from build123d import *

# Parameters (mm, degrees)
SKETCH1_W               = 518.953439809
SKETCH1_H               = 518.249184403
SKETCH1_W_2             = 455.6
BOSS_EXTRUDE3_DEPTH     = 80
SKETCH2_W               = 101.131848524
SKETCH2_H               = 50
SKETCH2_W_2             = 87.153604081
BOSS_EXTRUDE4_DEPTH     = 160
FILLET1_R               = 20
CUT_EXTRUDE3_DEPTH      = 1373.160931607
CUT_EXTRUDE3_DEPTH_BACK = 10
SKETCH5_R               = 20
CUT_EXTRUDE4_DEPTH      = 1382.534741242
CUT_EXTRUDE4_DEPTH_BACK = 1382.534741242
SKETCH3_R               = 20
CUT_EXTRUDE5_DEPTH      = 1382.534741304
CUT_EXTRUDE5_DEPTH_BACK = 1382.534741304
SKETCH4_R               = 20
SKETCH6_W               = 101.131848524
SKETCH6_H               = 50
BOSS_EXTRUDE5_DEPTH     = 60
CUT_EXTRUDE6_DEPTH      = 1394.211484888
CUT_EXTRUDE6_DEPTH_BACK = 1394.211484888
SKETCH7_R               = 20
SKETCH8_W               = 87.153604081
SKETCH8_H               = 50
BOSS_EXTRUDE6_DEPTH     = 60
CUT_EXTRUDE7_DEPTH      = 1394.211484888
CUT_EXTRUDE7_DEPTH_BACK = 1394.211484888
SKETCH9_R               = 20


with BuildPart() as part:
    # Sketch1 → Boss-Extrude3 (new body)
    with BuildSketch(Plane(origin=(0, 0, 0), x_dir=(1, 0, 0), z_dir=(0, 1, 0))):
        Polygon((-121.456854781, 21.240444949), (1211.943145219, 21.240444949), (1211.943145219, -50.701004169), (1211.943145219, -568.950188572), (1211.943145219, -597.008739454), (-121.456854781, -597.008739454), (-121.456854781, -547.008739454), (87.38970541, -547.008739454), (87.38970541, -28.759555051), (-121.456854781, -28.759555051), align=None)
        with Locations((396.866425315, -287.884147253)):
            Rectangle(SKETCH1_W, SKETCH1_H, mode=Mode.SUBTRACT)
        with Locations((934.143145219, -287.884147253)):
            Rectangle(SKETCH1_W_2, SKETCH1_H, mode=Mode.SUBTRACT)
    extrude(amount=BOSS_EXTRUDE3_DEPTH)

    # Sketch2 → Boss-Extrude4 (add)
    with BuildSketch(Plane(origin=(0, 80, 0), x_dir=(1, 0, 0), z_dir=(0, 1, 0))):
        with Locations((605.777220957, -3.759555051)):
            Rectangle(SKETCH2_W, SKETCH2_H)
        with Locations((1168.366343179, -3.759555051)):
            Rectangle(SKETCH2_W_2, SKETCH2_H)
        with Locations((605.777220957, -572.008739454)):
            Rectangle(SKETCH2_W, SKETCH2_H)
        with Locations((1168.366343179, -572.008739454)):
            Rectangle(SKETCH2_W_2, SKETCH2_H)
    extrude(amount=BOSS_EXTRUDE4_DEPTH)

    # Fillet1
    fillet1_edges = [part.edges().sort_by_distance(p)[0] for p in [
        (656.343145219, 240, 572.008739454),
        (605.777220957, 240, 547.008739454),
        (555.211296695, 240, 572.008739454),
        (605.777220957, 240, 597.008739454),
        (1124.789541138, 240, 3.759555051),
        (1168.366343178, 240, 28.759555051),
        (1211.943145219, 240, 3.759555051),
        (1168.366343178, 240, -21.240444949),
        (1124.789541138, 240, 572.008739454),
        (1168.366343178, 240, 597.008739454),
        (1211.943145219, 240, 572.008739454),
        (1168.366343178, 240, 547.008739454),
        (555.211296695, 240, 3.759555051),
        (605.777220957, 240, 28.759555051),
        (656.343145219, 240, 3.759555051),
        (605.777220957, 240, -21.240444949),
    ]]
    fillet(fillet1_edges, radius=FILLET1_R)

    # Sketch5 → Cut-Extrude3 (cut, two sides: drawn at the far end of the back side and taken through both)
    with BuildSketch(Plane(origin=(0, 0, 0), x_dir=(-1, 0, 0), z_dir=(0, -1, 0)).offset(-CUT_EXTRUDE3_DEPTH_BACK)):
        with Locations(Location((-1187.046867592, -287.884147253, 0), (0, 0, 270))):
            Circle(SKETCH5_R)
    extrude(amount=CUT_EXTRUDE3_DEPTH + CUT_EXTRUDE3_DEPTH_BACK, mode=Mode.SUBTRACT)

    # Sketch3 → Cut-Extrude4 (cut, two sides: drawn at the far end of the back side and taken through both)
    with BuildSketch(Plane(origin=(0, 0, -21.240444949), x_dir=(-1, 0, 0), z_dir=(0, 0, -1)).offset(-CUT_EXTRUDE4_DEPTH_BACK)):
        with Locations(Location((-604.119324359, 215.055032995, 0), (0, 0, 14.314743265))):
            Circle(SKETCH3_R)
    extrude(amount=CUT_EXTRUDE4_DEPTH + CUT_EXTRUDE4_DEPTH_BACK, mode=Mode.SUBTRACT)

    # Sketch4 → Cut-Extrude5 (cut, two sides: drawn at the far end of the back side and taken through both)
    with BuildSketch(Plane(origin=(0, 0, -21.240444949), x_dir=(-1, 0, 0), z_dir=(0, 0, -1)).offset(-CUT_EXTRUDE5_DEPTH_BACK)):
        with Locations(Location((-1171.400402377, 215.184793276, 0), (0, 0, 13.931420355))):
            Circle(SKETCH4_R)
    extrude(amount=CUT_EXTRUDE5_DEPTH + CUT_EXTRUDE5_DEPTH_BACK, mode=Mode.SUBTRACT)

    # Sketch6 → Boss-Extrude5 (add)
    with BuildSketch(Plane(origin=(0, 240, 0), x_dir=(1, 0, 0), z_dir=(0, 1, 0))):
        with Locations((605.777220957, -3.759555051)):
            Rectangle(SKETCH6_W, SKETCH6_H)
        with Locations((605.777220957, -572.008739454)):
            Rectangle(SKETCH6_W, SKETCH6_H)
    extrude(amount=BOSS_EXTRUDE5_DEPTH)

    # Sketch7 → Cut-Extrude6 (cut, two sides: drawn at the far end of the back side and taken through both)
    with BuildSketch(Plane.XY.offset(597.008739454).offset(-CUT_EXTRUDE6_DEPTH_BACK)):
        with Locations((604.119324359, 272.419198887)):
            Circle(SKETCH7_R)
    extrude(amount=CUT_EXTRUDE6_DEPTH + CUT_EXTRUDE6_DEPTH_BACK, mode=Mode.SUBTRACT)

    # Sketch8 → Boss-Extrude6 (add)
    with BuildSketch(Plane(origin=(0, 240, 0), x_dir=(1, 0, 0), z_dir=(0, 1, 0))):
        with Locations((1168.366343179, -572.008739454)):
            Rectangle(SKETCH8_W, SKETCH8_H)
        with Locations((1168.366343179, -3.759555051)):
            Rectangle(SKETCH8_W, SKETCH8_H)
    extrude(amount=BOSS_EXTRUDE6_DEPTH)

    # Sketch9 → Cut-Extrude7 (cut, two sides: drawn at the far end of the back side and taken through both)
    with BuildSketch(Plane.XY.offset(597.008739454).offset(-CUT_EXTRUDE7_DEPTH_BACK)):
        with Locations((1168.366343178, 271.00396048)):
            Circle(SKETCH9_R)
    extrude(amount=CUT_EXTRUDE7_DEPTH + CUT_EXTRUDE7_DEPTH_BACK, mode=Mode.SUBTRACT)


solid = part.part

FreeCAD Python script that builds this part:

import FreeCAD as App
import Part
import Sketcher

V = App.Vector


def edges_at(feature, points):
    """Names of the edges that pass closest to the given points."""
    edges = feature.Shape.Edges
    near = lambda p: min(range(len(edges)), key=lambda i: edges[i].distToShape(Part.Vertex(*p))[0])
    return sorted({f"Edge{near(p) + 1}" for p in points})

doc = App.newDocument("Part")
body = doc.addObject("PartDesign::Body", "Body")

# Sketch on XZ plane
sketch1 = body.newObject("Sketcher::SketchObject", "Sketch")
sketch1.AttachmentSupport = (doc.getObject("XZ_Plane"), [""])
sketch1.MapMode = "FlatFace"
sketch1.addGeometry(Part.LineSegment(V(1212, -21, 0), V(-121, -21, 0)), False)
sketch1.addGeometry(Part.LineSegment(V(-121, -21, 0), V(-121, 29, 0)), False)
sketch1.addGeometry(Part.LineSegment(V(-121, 29, 0), V(87, 29, 0)), False)
sketch1.addGeometry(Part.LineSegment(V(87, 29, 0), V(87, 547, 0)), False)
sketch1.addGeometry(Part.LineSegment(V(87, 547, 0), V(-121, 547, 0)), False)
sketch1.addGeometry(Part.LineSegment(V(-121, 547, 0), V(-121, 597, 0)), False)
sketch1.addGeometry(Part.LineSegment(V(-121, 597, 0), V(1212, 597, 0)), False)
sketch1.addGeometry(Part.LineSegment(V(1212, 597, 0), V(1212, -21, 0)), False)
sketch1.addGeometry(Part.LineSegment(V(706, 547, 0), V(706, 29, 0)), False)
sketch1.addGeometry(Part.LineSegment(V(706, 29, 0), V(1162, 29, 0)), False)
sketch1.addGeometry(Part.LineSegment(V(1162, 29, 0), V(1162, 547, 0)), False)
sketch1.addGeometry(Part.LineSegment(V(1162, 547, 0), V(706, 547, 0)), False)
sketch1.addGeometry(Part.LineSegment(V(137, 547, 0), V(137, 29, 0)), False)
sketch1.addGeometry(Part.LineSegment(V(137, 29, 0), V(656, 29, 0)), False)
sketch1.addGeometry(Part.LineSegment(V(656, 29, 0), V(656, 547, 0)), False)
sketch1.addGeometry(Part.LineSegment(V(656, 547, 0), V(137, 547, 0)), False)
sketch1.addConstraint(Sketcher.Constraint("Coincident", 0, 2, 1, 1))
sketch1.addConstraint(Sketcher.Constraint("Coincident", 1, 2, 2, 1))
sketch1.addConstraint(Sketcher.Constraint("Coincident", 2, 2, 3, 1))
sketch1.addConstraint(Sketcher.Constraint("Coincident", 3, 2, 4, 1))
sketch1.addConstraint(Sketcher.Constraint("Coincident", 4, 2, 5, 1))
sketch1.addConstraint(Sketcher.Constraint("Coincident", 5, 2, 6, 1))
sketch1.addConstraint(Sketcher.Constraint("Coincident", 6, 2, 7, 1))
sketch1.addConstraint(Sketcher.Constraint("Coincident", 7, 2, 0, 1))
sketch1.addConstraint(Sketcher.Constraint("Coincident", 8, 2, 9, 1))
sketch1.addConstraint(Sketcher.Constraint("Coincident", 9, 2, 10, 1))
sketch1.addConstraint(Sketcher.Constraint("Coincident", 10, 2, 11, 1))
sketch1.addConstraint(Sketcher.Constraint("Coincident", 11, 2, 8, 1))
sketch1.addConstraint(Sketcher.Constraint("Coincident", 12, 2, 13, 1))
sketch1.addConstraint(Sketcher.Constraint("Coincident", 13, 2, 14, 1))
sketch1.addConstraint(Sketcher.Constraint("Coincident", 14, 2, 15, 1))
sketch1.addConstraint(Sketcher.Constraint("Coincident", 15, 2, 12, 1))
sketch1.addConstraint(Sketcher.Constraint("Horizontal", 0))
sketch1.addConstraint(Sketcher.Constraint("Vertical", 1))
sketch1.addConstraint(Sketcher.Constraint("Horizontal", 2))
sketch1.addConstraint(Sketcher.Constraint("Vertical", 3))
sketch1.addConstraint(Sketcher.Constraint("Horizontal", 4))
sketch1.addConstraint(Sketcher.Constraint("Vertical", 5))
sketch1.addConstraint(Sketcher.Constraint("Horizontal", 6))
sketch1.addConstraint(Sketcher.Constraint("Vertical", 7))
sketch1.addConstraint(Sketcher.Constraint("Vertical", 8))
sketch1.addConstraint(Sketcher.Constraint("Horizontal", 9))
sketch1.addConstraint(Sketcher.Constraint("Vertical", 10))
sketch1.addConstraint(Sketcher.Constraint("Horizontal", 11))
sketch1.addConstraint(Sketcher.Constraint("Vertical", 12))
sketch1.addConstraint(Sketcher.Constraint("Horizontal", 13))
sketch1.addConstraint(Sketcher.Constraint("Vertical", 14))
sketch1.addConstraint(Sketcher.Constraint("Horizontal", 15))
sketch1.addConstraint(Sketcher.Constraint("Horizontal", 2, 2, 8, 2))
sketch1.addConstraint(Sketcher.Constraint("Horizontal", 4, 2, 10, 2))
sketch1.addConstraint(Sketcher.Constraint("Horizontal", 9, 2, 12, 2))
sketch1.addConstraint(Sketcher.Constraint("Horizontal", 11, 2, 14, 2))
sketch1.addConstraint(Sketcher.Constraint("Vertical", 1, 2, 4, 2))
sketch1.addConstraint(Sketcher.Constraint("Equal", 1, 5))
sketch1.addConstraint(Sketcher.Constraint("DistanceY", 1, 1, 1, 2, 50.0))
sketch1.addConstraint(Sketcher.Constraint("DistanceX", 0, 2, 0, 1, 1333.4))
sketch1.addConstraint(Sketcher.Constraint("DistanceX", 9, 1, 9, 2, 455.6))
sketch1.addConstraint(Sketcher.Constraint("DistanceX", 9, 2, 7, 2, 50.0))
sketch1.addConstraint(Sketcher.Constraint("DistanceX", 2, 2, 12, 2, 50.0))
sketch1.addConstraint(Sketcher.Constraint("DistanceX", 13, 2, 8, 2, 50.0))
sketch1.addConstraint(Sketcher.Constraint("DistanceX", 2, 1, 2, 2, 208.84656))
sketch1.addConstraint(Sketcher.Constraint("DistanceY", 3, 1, 3, 2, 518.249184))
sketch1.addConstraint(Sketcher.Constraint("DistanceY", -1, 1, 3, 2, 547.008739))
sketch1.addConstraint(Sketcher.Constraint("DistanceX", 0, 2, -1, 1, 121.456855))
pad1 = body.newObject("PartDesign::Pad", "Pad")
pad1.Profile = sketch1
pad1.Length = 80
pad1.Reversed = True

# Sketch on XZ plane
sketch2 = body.newObject("Sketcher::SketchObject", "Sketch001")
sketch2.AttachmentSupport = (doc.getObject("XZ_Plane"), [""])
sketch2.MapMode = "FlatFace"
sketch2.AttachmentOffset = App.Placement(V(0, 0, -80), App.Rotation())
sketch2.addGeometry(Part.LineSegment(V(555, -21, 0), V(555, 29, 0)), False)
sketch2.addGeometry(Part.LineSegment(V(555, 29, 0), V(656, 29, 0)), False)
sketch2.addGeometry(Part.LineSegment(V(656, 29, 0), V(656, -21, 0)), False)
sketch2.addGeometry(Part.LineSegment(V(656, -21, 0), V(555, -21, 0)), False)
sketch2.addGeometry(Part.LineSegment(V(1125, -21, 0), V(1125, 29, 0)), False)
sketch2.addGeometry(Part.LineSegment(V(1125, 29, 0), V(1212, 29, 0)), False)
sketch2.addGeometry(Part.LineSegment(V(1212, 29, 0), V(1212, -21, 0)), False)
sketch2.addGeometry(Part.LineSegment(V(1212, -21, 0), V(1125, -21, 0)), False)
sketch2.addGeometry(Part.LineSegment(V(555, 547, 0), V(555, 597, 0)), False)
sketch2.addGeometry(Part.LineSegment(V(555, 597, 0), V(656, 597, 0)), False)
sketch2.addGeometry(Part.LineSegment(V(656, 597, 0), V(656, 547, 0)), False)
sketch2.addGeometry(Part.LineSegment(V(656, 547, 0), V(555, 547, 0)), False)
sketch2.addGeometry(Part.LineSegment(V(1125, 547, 0), V(1125, 597, 0)), False)
sketch2.addGeometry(Part.LineSegment(V(1125, 597, 0), V(1212, 597, 0)), False)
sketch2.addGeometry(Part.LineSegment(V(1212, 597, 0), V(1212, 547, 0)), False)
sketch2.addGeometry(Part.LineSegment(V(1212, 547, 0), V(1125, 547, 0)), False)
sketch2.addConstraint(Sketcher.Constraint("Coincident", 0, 2, 1, 1))
sketch2.addConstraint(Sketcher.Constraint("Coincident", 1, 2, 2, 1))
sketch2.addConstraint(Sketcher.Constraint("Coincident", 2, 2, 3, 1))
sketch2.addConstraint(Sketcher.Constraint("Coincident", 3, 2, 0, 1))
sketch2.addConstraint(Sketcher.Constraint("Coincident", 4, 2, 5, 1))
sketch2.addConstraint(Sketcher.Constraint("Coincident", 5, 2, 6, 1))
sketch2.addConstraint(Sketcher.Constraint("Coincident", 6, 2, 7, 1))
sketch2.addConstraint(Sketcher.Constraint("Coincident", 7, 2, 4, 1))
sketch2.addConstraint(Sketcher.Constraint("Coincident", 8, 2, 9, 1))
sketch2.addConstraint(Sketcher.Constraint("Coincident", 9, 2, 10, 1))
sketch2.addConstraint(Sketcher.Constraint("Coincident", 10, 2, 11, 1))
sketch2.addConstraint(Sketcher.Constraint("Coincident", 11, 2, 8, 1))
sketch2.addConstraint(Sketcher.Constraint("Coincident", 12, 2, 13, 1))
sketch2.addConstraint(Sketcher.Constraint("Coincident", 13, 2, 14, 1))
sketch2.addConstraint(Sketcher.Constraint("Coincident", 14, 2, 15, 1))
sketch2.addConstraint(Sketcher.Constraint("Coincident", 15, 2, 12, 1))
sketch2.addConstraint(Sketcher.Constraint("Vertical", 0))
sketch2.addConstraint(Sketcher.Constraint("Horizontal", 1))
sketch2.addConstraint(Sketcher.Constraint("Vertical", 2))
sketch2.addConstraint(Sketcher.Constraint("Horizontal", 3))
sketch2.addConstraint(Sketcher.Constraint("Vertical", 4))
sketch2.addConstraint(Sketcher.Constraint("Horizontal", 5))
sketch2.addConstraint(Sketcher.Constraint("Vertical", 6))
sketch2.addConstraint(Sketcher.Constraint("Horizontal", 7))
sketch2.addConstraint(Sketcher.Constraint("Vertical", 8))
sketch2.addConstraint(Sketcher.Constraint("Horizontal", 9))
sketch2.addConstraint(Sketcher.Constraint("Vertical", 10))
sketch2.addConstraint(Sketcher.Constraint("Horizontal", 11))
sketch2.addConstraint(Sketcher.Constraint("Vertical", 12))
sketch2.addConstraint(Sketcher.Constraint("Horizontal", 13))
sketch2.addConstraint(Sketcher.Constraint("Vertical", 14))
sketch2.addConstraint(Sketcher.Constraint("Horizontal", 15))
sketch2.addConstraint(Sketcher.Constraint("Horizontal", 1, 2, 4, 2))
sketch2.addConstraint(Sketcher.Constraint("Horizontal", 3, 2, 6, 2))
sketch2.addConstraint(Sketcher.Constraint("Horizontal", 9, 2, 12, 2))
sketch2.addConstraint(Sketcher.Constraint("Horizontal", 11, 2, 14, 2))
sketch2.addConstraint(Sketcher.Constraint("Vertical", 3, 2, 8, 2))
sketch2.addConstraint(Sketcher.Constraint("Vertical", 2, 2, 9, 2))
sketch2.addConstraint(Sketcher.Constraint("Vertical", 7, 2, 12, 2))
sketch2.addConstraint(Sketcher.Constraint("Vertical", 6, 2, 13, 2))
sketch2.addConstraint(Sketcher.Constraint("Equal", 6, 8))
sketch2.addConstraint(Sketcher.Constraint("DistanceY", 0, 1, 0, 2, 50.0))
sketch2.addConstraint(Sketcher.Constraint("DistanceX", 1, 2, 5, 2, 555.6))
sketch2.addConstraint(Sketcher.Constraint("DistanceX", 1, 1, 1, 2, 101.131849))
sketch2.addConstraint(Sketcher.Constraint("DistanceX", 5, 1, 5, 2, 87.153604))
sketch2.addConstraint(Sketcher.Constraint("DistanceX", -1, 1, 4, 2, 1124.789541))
sketch2.addConstraint(Sketcher.Constraint("DistanceY", -1, 1, 8, 2, 597.008739))
sketch2.addConstraint(Sketcher.Constraint("DistanceY", -1, 1, 0, 2, 28.759555))
pad2 = body.newObject("PartDesign::Pad", "Pad001")
pad2.Profile = sketch2
pad2.Length = 160
pad2.Reversed = True
doc.recompute()

fillet = body.newObject("PartDesign::Fillet", "Fillet")
fillet.Base = (pad2, edges_at(pad2, [
    (656.343, 240, 572.009),
    (605.777, 240, 547.009),
    (555.211, 240, 572.009),
    (605.777, 240, 597.009),
    (1124.79, 240, 3.76),
    (1168.366, 240, 28.76),
    (1211.943, 240, 3.76),
    (1168.366, 240, -21.24),
    (1124.79, 240, 572.009),
    (1168.366, 240, 597.009),
    (1211.943, 240, 572.009),
    (1168.366, 240, 547.009),
    (555.211, 240, 3.76),
    (605.777, 240, 28.76),
    (656.343, 240, 3.76),
    (605.777, 240, -21.24),
]))
fillet.Radius = 20

# Sketch on XZ plane
sketch3 = body.newObject("Sketcher::SketchObject", "Sketch002")
sketch3.AttachmentSupport = (doc.getObject("XZ_Plane"), [""])
sketch3.MapMode = "FlatFace"
sketch3.addGeometry(Part.Circle(V(1187, 288, 0), V(0, 0, 1), 20), False)
sketch3.addConstraint(Sketcher.Constraint("Diameter", 0, 40.0))
sketch3.addConstraint(Sketcher.Constraint("DistanceX", -1, 1, 0, 3, 1187.046868))
sketch3.addConstraint(Sketcher.Constraint("DistanceY", -1, 1, 0, 3, 287.884147))
pocket1 = body.newObject("PartDesign::Pocket", "Pocket")
pocket1.Profile = sketch3
pocket1.Type = "TwoLengths"
pocket1.Length = 1373.160932
pocket1.Length2 = 10
pocket1.Reversed = True

# Sketch on XY plane
sketch4 = body.newObject("Sketcher::SketchObject", "Sketch003")
sketch4.AttachmentSupport = (doc.getObject("XY_Plane"), [""])
sketch4.MapMode = "FlatFace"
sketch4.AttachmentOffset = App.Placement(V(0, 0, -21.240445), App.Rotation())
sketch4.addGeometry(Part.Circle(V(604, 215, 0), V(0, 0, 1), 20), False)
sketch4.addConstraint(Sketcher.Constraint("Diameter", 0, 40.0))
sketch4.addConstraint(Sketcher.Constraint("DistanceX", -1, 1, 0, 3, 604.119324))
sketch4.addConstraint(Sketcher.Constraint("DistanceY", -1, 1, 0, 3, 215.055033))
pocket2 = body.newObject("PartDesign::Pocket", "Pocket001")
pocket2.Profile = sketch4
pocket2.Type = "ThroughAll"
pocket2.Midplane = True

# Sketch on XY plane
sketch5 = body.newObject("Sketcher::SketchObject", "Sketch004")
sketch5.AttachmentSupport = (doc.getObject("XY_Plane"), [""])
sketch5.MapMode = "FlatFace"
sketch5.AttachmentOffset = App.Placement(V(0, 0, -21.240445), App.Rotation())
sketch5.addGeometry(Part.Circle(V(1171, 215, 0), V(0, 0, 1), 20), False)
sketch5.addConstraint(Sketcher.Constraint("Diameter", 0, 40.0))
sketch5.addConstraint(Sketcher.Constraint("DistanceX", -1, 1, 0, 3, 1171.400402))
sketch5.addConstraint(Sketcher.Constraint("DistanceY", -1, 1, 0, 3, 215.184793))
pocket3 = body.newObject("PartDesign::Pocket", "Pocket002")
pocket3.Profile = sketch5
pocket3.Type = "ThroughAll"
pocket3.Midplane = True

# Sketch on XZ plane
sketch6 = body.newObject("Sketcher::SketchObject", "Sketch005")
sketch6.AttachmentSupport = (doc.getObject("XZ_Plane"), [""])
sketch6.MapMode = "FlatFace"
sketch6.AttachmentOffset = App.Placement(V(0, 0, -240), App.Rotation())
sketch6.addGeometry(Part.LineSegment(V(555, -21, 0), V(555, 29, 0)), False)
sketch6.addGeometry(Part.LineSegment(V(555, 29, 0), V(656, 29, 0)), False)
sketch6.addGeometry(Part.LineSegment(V(656, 29, 0), V(656, -21, 0)), False)
sketch6.addGeometry(Part.LineSegment(V(656, -21, 0), V(555, -21, 0)), False)
sketch6.addGeometry(Part.LineSegment(V(555, 547, 0), V(555, 597, 0)), False)
sketch6.addGeometry(Part.LineSegment(V(555, 597, 0), V(656, 597, 0)), False)
sketch6.addGeometry(Part.LineSegment(V(656, 597, 0), V(656, 547, 0)), False)
sketch6.addGeometry(Part.LineSegment(V(656, 547, 0), V(555, 547, 0)), False)
sketch6.addConstraint(Sketcher.Constraint("Coincident", 0, 2, 1, 1))
sketch6.addConstraint(Sketcher.Constraint("Coincident", 1, 2, 2, 1))
sketch6.addConstraint(Sketcher.Constraint("Coincident", 2, 2, 3, 1))
sketch6.addConstraint(Sketcher.Constraint("Coincident", 3, 2, 0, 1))
sketch6.addConstraint(Sketcher.Constraint("Coincident", 4, 2, 5, 1))
sketch6.addConstraint(Sketcher.Constraint("Coincident", 5, 2, 6, 1))
sketch6.addConstraint(Sketcher.Constraint("Coincident", 6, 2, 7, 1))
sketch6.addConstraint(Sketcher.Constraint("Coincident", 7, 2, 4, 1))
sketch6.addConstraint(Sketcher.Constraint("Vertical", 0))
sketch6.addConstraint(Sketcher.Constraint("Horizontal", 1))
sketch6.addConstraint(Sketcher.Constraint("Vertical", 2))
sketch6.addConstraint(Sketcher.Constraint("Horizontal", 3))
sketch6.addConstraint(Sketcher.Constraint("Vertical", 4))
sketch6.addConstraint(Sketcher.Constraint("Horizontal", 5))
sketch6.addConstraint(Sketcher.Constraint("Vertical", 6))
sketch6.addConstraint(Sketcher.Constraint("Horizontal", 7))
sketch6.addConstraint(Sketcher.Constraint("Vertical", 3, 2, 4, 2))
sketch6.addConstraint(Sketcher.Constraint("Vertical", 2, 2, 5, 2))
sketch6.addConstraint(Sketcher.Constraint("Equal", 2, 4))
sketch6.addConstraint(Sketcher.Constraint("DistanceY", 0, 1, 0, 2, 50.0))
sketch6.addConstraint(Sketcher.Constraint("DistanceX", 1, 1, 1, 2, 101.131849))
sketch6.addConstraint(Sketcher.Constraint("DistanceY", -1, 1, 4, 2, 597.008739))
sketch6.addConstraint(Sketcher.Constraint("DistanceX", -1, 1, 0, 2, 555.211297))
sketch6.addConstraint(Sketcher.Constraint("DistanceY", -1, 1, 0, 2, 28.759555))
pad3 = body.newObject("PartDesign::Pad", "Pad002")
pad3.Profile = sketch6
pad3.Length = 60
pad3.Reversed = True

# Sketch on XY plane
sketch7 = body.newObject("Sketcher::SketchObject", "Sketch006")
sketch7.AttachmentSupport = (doc.getObject("XY_Plane"), [""])
sketch7.MapMode = "FlatFace"
sketch7.AttachmentOffset = App.Placement(V(0, 0, 597.008739), App.Rotation())
sketch7.addGeometry(Part.Circle(V(604, 272, 0), V(0, 0, 1), 20), False)
sketch7.addConstraint(Sketcher.Constraint("Diameter", 0, 40.0))
sketch7.addConstraint(Sketcher.Constraint("DistanceY", -1, 1, 0, 3, 272.419199))
sketch7.addConstraint(Sketcher.Constraint("DistanceX", -1, 1, 0, 3, 604.119324))
pocket4 = body.newObject("PartDesign::Pocket", "Pocket003")
pocket4.Profile = sketch7
pocket4.Type = "ThroughAll"
pocket4.Midplane = True

# Sketch on XZ plane
sketch8 = body.newObject("Sketcher::SketchObject", "Sketch007")
sketch8.AttachmentSupport = (doc.getObject("XZ_Plane"), [""])
sketch8.MapMode = "FlatFace"
sketch8.AttachmentOffset = App.Placement(V(0, 0, -240), App.Rotation())
sketch8.addGeometry(Part.LineSegment(V(1125, 547, 0), V(1125, 597, 0)), False)
sketch8.addGeometry(Part.LineSegment(V(1125, 597, 0), V(1212, 597, 0)), False)
sketch8.addGeometry(Part.LineSegment(V(1212, 597, 0), V(1212, 547, 0)), False)
sketch8.addGeometry(Part.LineSegment(V(1212, 547, 0), V(1125, 547, 0)), False)
sketch8.addGeometry(Part.LineSegment(V(1125, -21, 0), V(1125, 29, 0)), False)
sketch8.addGeometry(Part.LineSegment(V(1125, 29, 0), V(1212, 29, 0)), False)
sketch8.addGeometry(Part.LineSegment(V(1212, 29, 0), V(1212, -21, 0)), False)
sketch8.addGeometry(Part.LineSegment(V(1212, -21, 0), V(1125, -21, 0)), False)
sketch8.addConstraint(Sketcher.Constraint("Coincident", 0, 2, 1, 1))
sketch8.addConstraint(Sketcher.Constraint("Coincident", 1, 2, 2, 1))
sketch8.addConstraint(Sketcher.Constraint("Coincident", 2, 2, 3, 1))
sketch8.addConstraint(Sketcher.Constraint("Coincident", 3, 2, 0, 1))
sketch8.addConstraint(Sketcher.Constraint("Coincident", 4, 2, 5, 1))
sketch8.addConstraint(Sketcher.Constraint("Coincident", 5, 2, 6, 1))
sketch8.addConstraint(Sketcher.Constraint("Coincident", 6, 2, 7, 1))
sketch8.addConstraint(Sketcher.Constraint("Coincident", 7, 2, 4, 1))
sketch8.addConstraint(Sketcher.Constraint("Vertical", 0))
sketch8.addConstraint(Sketcher.Constraint("Horizontal", 1))
sketch8.addConstraint(Sketcher.Constraint("Vertical", 2))
sketch8.addConstraint(Sketcher.Constraint("Horizontal", 3))
sketch8.addConstraint(Sketcher.Constraint("Vertical", 4))
sketch8.addConstraint(Sketcher.Constraint("Horizontal", 5))
sketch8.addConstraint(Sketcher.Constraint("Vertical", 6))
sketch8.addConstraint(Sketcher.Constraint("Horizontal", 7))
sketch8.addConstraint(Sketcher.Constraint("Vertical", 3, 2, 4, 2))
sketch8.addConstraint(Sketcher.Constraint("Vertical", 2, 2, 5, 2))
sketch8.addConstraint(Sketcher.Constraint("Equal", 2, 4))
sketch8.addConstraint(Sketcher.Constraint("DistanceY", 0, 1, 0, 2, 50.0))
sketch8.addConstraint(Sketcher.Constraint("DistanceX", 1, 1, 1, 2, 87.153604))
sketch8.addConstraint(Sketcher.Constraint("DistanceX", -1, 1, 0, 2, 1124.789541))
sketch8.addConstraint(Sketcher.Constraint("DistanceY", -1, 1, 0, 2, 597.008739))
sketch8.addConstraint(Sketcher.Constraint("DistanceY", -1, 1, 4, 2, 28.759555))
pad4 = body.newObject("PartDesign::Pad", "Pad003")
pad4.Profile = sketch8
pad4.Length = 60
pad4.Reversed = True

# Sketch on XY plane
sketch9 = body.newObject("Sketcher::SketchObject", "Sketch008")
sketch9.AttachmentSupport = (doc.getObject("XY_Plane"), [""])
sketch9.MapMode = "FlatFace"
sketch9.AttachmentOffset = App.Placement(V(0, 0, 597.008739), App.Rotation())
sketch9.addGeometry(Part.Circle(V(1168, 271, 0), V(0, 0, 1), 20), False)
sketch9.addConstraint(Sketcher.Constraint("Diameter", 0, 40.0))
sketch9.addConstraint(Sketcher.Constraint("DistanceY", -1, 1, 0, 3, 271.00396))
sketch9.addConstraint(Sketcher.Constraint("DistanceX", -1, 1, 0, 3, 1168.366343))
pocket5 = body.newObject("PartDesign::Pocket", "Pocket004")
pocket5.Profile = sketch9
pocket5.Type = "ThroughAll"
pocket5.Midplane = True

doc.recompute()
